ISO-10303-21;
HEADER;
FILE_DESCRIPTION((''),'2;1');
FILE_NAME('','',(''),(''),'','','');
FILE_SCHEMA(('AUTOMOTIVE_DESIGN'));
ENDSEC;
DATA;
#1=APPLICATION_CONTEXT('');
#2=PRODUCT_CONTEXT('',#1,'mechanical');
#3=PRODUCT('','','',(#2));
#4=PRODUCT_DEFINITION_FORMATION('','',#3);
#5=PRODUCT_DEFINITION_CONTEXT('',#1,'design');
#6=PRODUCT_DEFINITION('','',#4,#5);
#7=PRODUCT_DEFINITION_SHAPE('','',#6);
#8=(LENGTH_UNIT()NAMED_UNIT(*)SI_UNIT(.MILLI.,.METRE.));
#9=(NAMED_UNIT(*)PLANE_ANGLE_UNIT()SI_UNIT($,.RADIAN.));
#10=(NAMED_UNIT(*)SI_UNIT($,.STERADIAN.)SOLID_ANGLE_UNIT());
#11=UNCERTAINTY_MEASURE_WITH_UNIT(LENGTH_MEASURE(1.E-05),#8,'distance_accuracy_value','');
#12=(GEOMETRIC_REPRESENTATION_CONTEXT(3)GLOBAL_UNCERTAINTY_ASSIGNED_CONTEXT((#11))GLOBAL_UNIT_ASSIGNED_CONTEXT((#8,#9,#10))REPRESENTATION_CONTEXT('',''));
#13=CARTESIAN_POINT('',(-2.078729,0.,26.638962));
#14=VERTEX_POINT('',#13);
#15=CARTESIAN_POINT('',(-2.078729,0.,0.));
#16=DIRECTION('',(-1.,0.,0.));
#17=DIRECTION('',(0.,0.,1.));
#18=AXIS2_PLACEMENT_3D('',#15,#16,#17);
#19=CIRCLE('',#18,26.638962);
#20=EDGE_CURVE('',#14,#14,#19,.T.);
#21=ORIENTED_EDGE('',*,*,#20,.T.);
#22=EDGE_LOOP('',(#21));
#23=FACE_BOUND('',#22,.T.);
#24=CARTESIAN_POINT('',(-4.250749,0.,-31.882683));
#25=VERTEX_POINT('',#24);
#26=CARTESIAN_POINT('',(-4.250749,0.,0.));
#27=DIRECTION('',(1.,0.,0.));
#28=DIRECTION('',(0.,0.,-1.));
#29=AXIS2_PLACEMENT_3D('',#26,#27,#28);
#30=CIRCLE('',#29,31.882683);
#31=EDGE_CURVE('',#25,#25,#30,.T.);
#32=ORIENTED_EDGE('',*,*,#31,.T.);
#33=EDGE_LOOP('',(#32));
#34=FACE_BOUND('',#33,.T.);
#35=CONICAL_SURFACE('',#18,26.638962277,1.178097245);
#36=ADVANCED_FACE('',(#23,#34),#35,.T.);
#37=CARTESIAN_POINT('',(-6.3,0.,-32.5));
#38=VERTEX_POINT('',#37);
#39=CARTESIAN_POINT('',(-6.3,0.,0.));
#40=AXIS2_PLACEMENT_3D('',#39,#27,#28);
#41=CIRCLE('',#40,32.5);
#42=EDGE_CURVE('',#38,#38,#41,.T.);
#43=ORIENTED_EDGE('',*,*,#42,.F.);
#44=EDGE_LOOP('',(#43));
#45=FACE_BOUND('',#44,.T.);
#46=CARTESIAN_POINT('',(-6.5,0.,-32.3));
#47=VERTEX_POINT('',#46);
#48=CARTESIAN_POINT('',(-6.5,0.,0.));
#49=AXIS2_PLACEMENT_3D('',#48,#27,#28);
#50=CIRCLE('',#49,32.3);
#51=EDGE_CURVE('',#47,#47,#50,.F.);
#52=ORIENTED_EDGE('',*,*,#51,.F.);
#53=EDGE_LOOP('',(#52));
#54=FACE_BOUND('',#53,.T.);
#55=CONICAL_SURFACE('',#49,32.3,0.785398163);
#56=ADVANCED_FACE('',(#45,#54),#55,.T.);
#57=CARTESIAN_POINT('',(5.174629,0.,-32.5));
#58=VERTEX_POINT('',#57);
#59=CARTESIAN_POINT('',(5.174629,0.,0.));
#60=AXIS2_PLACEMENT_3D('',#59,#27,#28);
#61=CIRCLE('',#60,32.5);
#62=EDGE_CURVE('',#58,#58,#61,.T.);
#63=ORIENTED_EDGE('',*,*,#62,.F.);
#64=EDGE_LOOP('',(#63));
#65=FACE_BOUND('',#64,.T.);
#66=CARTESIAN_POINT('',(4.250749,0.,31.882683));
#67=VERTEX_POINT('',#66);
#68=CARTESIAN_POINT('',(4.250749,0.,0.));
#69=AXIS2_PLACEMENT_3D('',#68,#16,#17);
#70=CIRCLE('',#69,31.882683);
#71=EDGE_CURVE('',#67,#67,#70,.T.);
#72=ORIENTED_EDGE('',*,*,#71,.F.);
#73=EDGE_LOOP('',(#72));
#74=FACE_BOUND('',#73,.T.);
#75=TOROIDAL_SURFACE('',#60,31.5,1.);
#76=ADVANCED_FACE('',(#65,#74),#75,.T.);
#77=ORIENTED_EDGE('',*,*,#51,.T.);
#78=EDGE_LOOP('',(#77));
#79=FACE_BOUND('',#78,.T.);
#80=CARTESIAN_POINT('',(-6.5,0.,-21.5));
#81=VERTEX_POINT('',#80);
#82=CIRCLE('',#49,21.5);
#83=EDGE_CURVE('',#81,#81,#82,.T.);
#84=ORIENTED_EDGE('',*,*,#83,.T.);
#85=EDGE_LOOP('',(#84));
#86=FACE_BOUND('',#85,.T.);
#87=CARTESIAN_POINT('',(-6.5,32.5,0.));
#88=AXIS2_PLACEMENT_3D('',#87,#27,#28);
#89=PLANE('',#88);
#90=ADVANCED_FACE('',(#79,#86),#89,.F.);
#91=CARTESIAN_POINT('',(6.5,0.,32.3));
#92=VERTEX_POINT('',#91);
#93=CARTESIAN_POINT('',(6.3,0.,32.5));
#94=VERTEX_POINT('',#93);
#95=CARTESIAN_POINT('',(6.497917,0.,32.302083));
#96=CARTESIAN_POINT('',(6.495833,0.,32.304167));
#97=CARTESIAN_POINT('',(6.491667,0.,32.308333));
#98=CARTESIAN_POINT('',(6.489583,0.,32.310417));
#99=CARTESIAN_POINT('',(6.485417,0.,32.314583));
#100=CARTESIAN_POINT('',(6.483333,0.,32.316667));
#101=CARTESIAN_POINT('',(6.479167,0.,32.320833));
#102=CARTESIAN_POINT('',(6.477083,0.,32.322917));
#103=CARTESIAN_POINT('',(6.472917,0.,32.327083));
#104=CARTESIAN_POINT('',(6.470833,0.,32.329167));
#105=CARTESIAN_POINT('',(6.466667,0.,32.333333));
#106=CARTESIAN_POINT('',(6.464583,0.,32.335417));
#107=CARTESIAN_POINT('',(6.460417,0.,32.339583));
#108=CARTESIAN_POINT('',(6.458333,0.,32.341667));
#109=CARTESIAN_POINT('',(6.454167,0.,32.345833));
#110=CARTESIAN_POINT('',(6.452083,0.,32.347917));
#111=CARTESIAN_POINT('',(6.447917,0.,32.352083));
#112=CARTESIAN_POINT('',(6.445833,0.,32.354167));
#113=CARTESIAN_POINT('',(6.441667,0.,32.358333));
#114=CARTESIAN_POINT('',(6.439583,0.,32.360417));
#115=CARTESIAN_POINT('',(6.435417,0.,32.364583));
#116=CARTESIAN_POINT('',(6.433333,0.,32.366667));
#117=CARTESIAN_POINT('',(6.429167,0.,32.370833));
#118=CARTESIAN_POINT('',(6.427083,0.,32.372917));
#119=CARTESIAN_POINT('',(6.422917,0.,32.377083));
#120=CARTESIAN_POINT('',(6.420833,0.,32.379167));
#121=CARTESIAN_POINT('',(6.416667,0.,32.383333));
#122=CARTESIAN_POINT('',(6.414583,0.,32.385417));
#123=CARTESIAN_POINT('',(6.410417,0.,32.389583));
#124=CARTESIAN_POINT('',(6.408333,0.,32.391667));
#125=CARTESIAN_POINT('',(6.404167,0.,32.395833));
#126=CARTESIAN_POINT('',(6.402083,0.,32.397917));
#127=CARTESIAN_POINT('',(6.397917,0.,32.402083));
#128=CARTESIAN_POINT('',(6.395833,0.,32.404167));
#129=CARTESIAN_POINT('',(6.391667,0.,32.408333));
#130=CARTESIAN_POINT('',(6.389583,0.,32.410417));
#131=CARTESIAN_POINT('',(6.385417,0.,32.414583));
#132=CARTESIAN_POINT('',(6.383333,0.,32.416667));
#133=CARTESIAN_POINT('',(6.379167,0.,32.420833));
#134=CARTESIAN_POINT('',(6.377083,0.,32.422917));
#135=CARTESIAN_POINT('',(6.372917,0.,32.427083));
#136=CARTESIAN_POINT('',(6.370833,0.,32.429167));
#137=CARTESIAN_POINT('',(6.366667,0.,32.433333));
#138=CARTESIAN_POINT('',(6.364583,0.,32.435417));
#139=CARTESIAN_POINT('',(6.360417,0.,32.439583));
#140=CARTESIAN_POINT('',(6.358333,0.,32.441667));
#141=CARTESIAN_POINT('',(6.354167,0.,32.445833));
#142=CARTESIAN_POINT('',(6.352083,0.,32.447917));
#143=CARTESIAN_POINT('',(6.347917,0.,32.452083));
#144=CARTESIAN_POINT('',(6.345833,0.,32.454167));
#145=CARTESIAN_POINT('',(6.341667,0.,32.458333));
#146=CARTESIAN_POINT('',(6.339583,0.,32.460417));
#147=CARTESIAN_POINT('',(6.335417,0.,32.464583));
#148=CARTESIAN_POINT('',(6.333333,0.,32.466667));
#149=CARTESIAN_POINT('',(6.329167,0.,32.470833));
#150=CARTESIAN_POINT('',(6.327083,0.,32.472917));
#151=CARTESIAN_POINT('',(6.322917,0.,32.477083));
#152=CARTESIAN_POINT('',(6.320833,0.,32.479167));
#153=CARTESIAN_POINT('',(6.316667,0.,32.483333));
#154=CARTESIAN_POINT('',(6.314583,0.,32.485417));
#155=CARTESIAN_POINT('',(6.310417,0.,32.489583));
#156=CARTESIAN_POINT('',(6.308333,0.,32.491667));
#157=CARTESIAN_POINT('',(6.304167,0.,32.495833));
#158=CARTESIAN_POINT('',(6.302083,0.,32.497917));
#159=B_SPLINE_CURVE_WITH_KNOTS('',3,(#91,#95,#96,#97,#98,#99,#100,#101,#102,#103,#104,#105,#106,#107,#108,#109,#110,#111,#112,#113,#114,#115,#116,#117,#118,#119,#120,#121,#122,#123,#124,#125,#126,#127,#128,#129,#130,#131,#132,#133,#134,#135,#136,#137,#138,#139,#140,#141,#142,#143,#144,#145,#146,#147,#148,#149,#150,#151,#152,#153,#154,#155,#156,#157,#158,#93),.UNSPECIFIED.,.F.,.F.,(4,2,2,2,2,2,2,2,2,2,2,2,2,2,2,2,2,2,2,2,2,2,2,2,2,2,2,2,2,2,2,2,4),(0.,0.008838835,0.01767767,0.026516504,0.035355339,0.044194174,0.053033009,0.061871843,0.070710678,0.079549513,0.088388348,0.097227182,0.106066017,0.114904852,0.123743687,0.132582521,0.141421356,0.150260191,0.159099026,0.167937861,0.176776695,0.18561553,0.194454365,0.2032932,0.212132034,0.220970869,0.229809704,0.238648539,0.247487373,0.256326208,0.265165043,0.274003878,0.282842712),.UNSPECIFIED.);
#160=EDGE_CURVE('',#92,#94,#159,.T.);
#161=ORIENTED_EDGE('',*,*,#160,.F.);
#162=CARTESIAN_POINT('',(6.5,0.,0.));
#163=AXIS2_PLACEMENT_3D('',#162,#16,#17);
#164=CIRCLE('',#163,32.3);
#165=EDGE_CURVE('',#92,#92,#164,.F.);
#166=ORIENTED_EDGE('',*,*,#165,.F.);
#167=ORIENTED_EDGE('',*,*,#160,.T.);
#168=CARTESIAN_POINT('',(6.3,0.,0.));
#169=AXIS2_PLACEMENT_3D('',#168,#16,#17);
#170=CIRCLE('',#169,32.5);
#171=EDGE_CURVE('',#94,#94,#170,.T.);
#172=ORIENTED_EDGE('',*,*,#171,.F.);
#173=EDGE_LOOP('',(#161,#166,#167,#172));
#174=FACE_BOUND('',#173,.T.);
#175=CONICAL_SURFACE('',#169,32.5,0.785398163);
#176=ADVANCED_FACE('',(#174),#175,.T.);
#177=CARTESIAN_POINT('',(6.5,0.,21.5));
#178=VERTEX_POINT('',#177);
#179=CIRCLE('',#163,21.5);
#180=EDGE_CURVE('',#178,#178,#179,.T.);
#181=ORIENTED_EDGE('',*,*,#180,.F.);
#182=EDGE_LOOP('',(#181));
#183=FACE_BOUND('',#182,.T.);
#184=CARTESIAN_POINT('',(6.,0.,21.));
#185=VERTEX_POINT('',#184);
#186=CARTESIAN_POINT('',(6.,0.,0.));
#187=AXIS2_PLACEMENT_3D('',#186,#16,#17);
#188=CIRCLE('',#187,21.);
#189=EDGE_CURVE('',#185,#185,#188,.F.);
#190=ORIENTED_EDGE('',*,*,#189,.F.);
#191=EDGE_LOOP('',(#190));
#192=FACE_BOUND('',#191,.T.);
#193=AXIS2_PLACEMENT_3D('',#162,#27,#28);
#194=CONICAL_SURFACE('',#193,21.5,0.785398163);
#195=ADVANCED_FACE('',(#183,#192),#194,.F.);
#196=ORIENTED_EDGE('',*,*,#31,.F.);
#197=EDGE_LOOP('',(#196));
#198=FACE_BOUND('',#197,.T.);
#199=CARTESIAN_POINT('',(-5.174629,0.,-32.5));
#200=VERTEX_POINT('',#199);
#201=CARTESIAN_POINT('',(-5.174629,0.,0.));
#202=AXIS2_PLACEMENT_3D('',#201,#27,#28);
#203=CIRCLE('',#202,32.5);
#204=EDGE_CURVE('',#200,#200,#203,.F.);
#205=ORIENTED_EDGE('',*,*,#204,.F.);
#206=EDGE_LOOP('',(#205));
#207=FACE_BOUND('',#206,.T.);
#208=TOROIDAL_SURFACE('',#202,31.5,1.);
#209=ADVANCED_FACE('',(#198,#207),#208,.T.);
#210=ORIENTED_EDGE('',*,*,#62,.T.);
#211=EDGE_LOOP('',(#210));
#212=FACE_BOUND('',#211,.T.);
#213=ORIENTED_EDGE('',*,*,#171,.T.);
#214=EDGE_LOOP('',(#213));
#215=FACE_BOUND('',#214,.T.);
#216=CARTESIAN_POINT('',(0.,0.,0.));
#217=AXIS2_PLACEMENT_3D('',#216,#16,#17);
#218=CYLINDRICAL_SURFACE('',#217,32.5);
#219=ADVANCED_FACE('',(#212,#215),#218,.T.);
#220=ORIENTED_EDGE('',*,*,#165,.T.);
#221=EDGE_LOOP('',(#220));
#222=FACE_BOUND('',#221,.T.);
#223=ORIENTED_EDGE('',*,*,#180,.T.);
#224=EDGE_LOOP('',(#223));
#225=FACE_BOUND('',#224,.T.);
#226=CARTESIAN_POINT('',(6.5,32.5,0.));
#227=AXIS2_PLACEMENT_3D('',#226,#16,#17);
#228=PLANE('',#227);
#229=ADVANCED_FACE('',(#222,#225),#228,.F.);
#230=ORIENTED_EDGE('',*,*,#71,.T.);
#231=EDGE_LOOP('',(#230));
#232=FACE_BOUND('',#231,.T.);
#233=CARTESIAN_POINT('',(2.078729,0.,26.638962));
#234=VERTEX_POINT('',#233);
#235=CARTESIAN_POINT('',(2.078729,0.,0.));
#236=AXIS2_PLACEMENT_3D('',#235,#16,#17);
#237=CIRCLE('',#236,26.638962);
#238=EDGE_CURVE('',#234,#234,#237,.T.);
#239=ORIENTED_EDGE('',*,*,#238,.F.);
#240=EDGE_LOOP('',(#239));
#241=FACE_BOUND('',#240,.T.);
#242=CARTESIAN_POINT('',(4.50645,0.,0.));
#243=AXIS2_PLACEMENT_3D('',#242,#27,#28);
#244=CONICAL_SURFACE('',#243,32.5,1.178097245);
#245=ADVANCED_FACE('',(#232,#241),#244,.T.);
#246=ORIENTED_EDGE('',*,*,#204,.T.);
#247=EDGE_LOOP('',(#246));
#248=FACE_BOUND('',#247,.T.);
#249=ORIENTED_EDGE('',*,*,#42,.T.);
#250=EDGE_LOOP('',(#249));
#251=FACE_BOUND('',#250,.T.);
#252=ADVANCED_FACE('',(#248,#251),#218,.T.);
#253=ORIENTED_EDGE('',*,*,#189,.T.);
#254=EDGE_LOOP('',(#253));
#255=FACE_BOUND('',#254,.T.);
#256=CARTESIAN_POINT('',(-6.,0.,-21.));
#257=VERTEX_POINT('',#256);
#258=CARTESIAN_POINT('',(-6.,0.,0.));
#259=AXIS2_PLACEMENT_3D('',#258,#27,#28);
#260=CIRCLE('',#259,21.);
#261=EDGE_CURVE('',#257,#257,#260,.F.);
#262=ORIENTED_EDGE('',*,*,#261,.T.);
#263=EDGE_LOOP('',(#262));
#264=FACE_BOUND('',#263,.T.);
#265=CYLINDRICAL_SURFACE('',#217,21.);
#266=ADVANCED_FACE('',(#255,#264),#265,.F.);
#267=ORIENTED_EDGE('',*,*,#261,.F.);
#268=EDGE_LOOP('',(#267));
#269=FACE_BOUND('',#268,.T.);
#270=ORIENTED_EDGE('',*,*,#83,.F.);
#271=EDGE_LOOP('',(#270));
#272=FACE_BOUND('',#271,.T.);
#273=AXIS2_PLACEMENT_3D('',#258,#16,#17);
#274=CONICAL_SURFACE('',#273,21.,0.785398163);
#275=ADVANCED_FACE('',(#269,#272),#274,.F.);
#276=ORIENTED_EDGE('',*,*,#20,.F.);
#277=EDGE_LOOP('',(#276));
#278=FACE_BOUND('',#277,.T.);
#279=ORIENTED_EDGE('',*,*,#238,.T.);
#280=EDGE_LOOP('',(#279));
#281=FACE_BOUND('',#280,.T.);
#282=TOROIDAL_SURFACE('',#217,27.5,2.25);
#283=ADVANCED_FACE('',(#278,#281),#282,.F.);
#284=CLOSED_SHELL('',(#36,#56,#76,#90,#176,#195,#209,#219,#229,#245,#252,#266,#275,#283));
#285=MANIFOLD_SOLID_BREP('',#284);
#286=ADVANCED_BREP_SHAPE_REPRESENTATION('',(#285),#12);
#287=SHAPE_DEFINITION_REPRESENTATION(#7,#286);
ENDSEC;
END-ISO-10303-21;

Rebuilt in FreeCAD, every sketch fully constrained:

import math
import FreeCAD as App
import Part
import Sketcher
Q = App.Units.Quantity


def edges_at(feature, points):
    """Names of the edges that pass closest to the given points."""
    edges = feature.Shape.Edges
    near = lambda p: min(range(len(edges)), key=lambda i: edges[i].distToShape(Part.Vertex(*p))[0])
    return sorted({f"Edge{near(p) + 1}" for p in points})

doc = App.newDocument("Part")
body = doc.addObject("PartDesign::Body", "Body")

sketch1 = body.newObject("Sketcher::SketchObject", "Sketch")
sketch1.AttachmentSupport = (doc.getObject("XY_Plane"), [""])
sketch1.MapMode = "FlatFace"
sketch1.addGeometry(Part.LineSegment(App.Vector(4.5, 32.5, 0), App.Vector(2.1, 26.6, 0)), False)
sketch1.addGeometry(Part.ArcOfCircle(Part.Circle(App.Vector(0, 27.5, 0), App.Vector(0, 0, 1), 2.2), math.radians(-157), math.radians(-23)), False)
sketch1.addGeometry(Part.LineSegment(App.Vector(-2.1, 26.6, 0), App.Vector(-4.5, 32.5, 0)), False)
sketch1.addGeometry(Part.LineSegment(App.Vector(-4.5, 32.5, 0), App.Vector(-6.5, 32.5, 0)), False)
sketch1.addGeometry(Part.LineSegment(App.Vector(-6.5, 32.5, 0), App.Vector(-6.5, 21, 0)), False)
sketch1.addGeometry(Part.LineSegment(App.Vector(-6.5, 21, 0), App.Vector(6.5, 21, 0)), False)
sketch1.addGeometry(Part.LineSegment(App.Vector(6.5, 21, 0), App.Vector(6.5, 32.5, 0)), False)
sketch1.addGeometry(Part.LineSegment(App.Vector(6.5, 32.5, 0), App.Vector(4.5, 32.5, 0)), False)
sketch1.addConstraint(Sketcher.Constraint("Tangent", 0, 2, 1, 2))
sketch1.addConstraint(Sketcher.Constraint("Tangent", 1, 1, 2, 1))
sketch1.addConstraint(Sketcher.Constraint("Coincident", 2, 2, 3, 1))
sketch1.addConstraint(Sketcher.Constraint("Coincident", 3, 2, 4, 1))
sketch1.addConstraint(Sketcher.Constraint("Coincident", 4, 2, 5, 1))
sketch1.addConstraint(Sketcher.Constraint("Coincident", 5, 2, 6, 1))
sketch1.addConstraint(Sketcher.Constraint("Coincident", 6, 2, 7, 1))
sketch1.addConstraint(Sketcher.Constraint("Coincident", 7, 2, 0, 1))
sketch1.addConstraint(Sketcher.Constraint("Horizontal", 3))
sketch1.addConstraint(Sketcher.Constraint("Vertical", 4))
sketch1.addConstraint(Sketcher.Constraint("Horizontal", 5))
sketch1.addConstraint(Sketcher.Constraint("Vertical", 6))
sketch1.addConstraint(Sketcher.Constraint("Horizontal", 7))
sketch1.addConstraint(Sketcher.Constraint("Symmetric", 0, 2, 1, 1, -2))
sketch1.addConstraint(Sketcher.Constraint("Symmetric", 3, 2, 6, 2, -2))
sketch1.addConstraint(Sketcher.Constraint("DistanceX", 5, 1, 5, 2, Q("13 mm")))
sketch1.addConstraint(Sketcher.Constraint("Radius", 1, Q("2.25 mm")))
sketch1.addConstraint(Sketcher.Constraint("DistanceY", 4, 2, 4, 1, Q("11.5 mm")))
sketch1.addConstraint(Sketcher.Constraint("DistanceY", -1, 1, 4, 2, Q("21 mm")))
sketch1.addConstraint(Sketcher.Constraint("Angle", 0, Q("-112.5 deg")))
sketch1.addConstraint(Sketcher.Constraint("DistanceY", 1, 3, 2, 2, Q("5 mm")))
revolution = body.newObject("PartDesign::Revolution", "Revolution")
revolution.Profile = sketch1
revolution.ReferenceAxis = (sketch1, ["H_Axis"])
revolution.Angle = 360
doc.recompute()

fillet = body.newObject("PartDesign::Fillet", "Fillet")
fillet.Base = (revolution, edges_at(revolution, [(-4.506, 0, -32.5), (4.506, 0, -32.5)]))
fillet.Radius = 1
doc.recompute()

chamfer = body.newObject("PartDesign::Chamfer", "Chamfer")
chamfer.Base = (fillet, edges_at(fillet, [(6.5, 0, -32.5), (-6.5, 0, -32.5)]))
chamfer.Size = 0.2
doc.recompute()

chamfer2 = body.newObject("PartDesign::Chamfer", "Chamfer001")
chamfer2.Base = (chamfer, edges_at(chamfer, [(6.5, 0, -21), (-6.5, 0, -21)]))
chamfer2.Size = 0.5

doc.recompute()
